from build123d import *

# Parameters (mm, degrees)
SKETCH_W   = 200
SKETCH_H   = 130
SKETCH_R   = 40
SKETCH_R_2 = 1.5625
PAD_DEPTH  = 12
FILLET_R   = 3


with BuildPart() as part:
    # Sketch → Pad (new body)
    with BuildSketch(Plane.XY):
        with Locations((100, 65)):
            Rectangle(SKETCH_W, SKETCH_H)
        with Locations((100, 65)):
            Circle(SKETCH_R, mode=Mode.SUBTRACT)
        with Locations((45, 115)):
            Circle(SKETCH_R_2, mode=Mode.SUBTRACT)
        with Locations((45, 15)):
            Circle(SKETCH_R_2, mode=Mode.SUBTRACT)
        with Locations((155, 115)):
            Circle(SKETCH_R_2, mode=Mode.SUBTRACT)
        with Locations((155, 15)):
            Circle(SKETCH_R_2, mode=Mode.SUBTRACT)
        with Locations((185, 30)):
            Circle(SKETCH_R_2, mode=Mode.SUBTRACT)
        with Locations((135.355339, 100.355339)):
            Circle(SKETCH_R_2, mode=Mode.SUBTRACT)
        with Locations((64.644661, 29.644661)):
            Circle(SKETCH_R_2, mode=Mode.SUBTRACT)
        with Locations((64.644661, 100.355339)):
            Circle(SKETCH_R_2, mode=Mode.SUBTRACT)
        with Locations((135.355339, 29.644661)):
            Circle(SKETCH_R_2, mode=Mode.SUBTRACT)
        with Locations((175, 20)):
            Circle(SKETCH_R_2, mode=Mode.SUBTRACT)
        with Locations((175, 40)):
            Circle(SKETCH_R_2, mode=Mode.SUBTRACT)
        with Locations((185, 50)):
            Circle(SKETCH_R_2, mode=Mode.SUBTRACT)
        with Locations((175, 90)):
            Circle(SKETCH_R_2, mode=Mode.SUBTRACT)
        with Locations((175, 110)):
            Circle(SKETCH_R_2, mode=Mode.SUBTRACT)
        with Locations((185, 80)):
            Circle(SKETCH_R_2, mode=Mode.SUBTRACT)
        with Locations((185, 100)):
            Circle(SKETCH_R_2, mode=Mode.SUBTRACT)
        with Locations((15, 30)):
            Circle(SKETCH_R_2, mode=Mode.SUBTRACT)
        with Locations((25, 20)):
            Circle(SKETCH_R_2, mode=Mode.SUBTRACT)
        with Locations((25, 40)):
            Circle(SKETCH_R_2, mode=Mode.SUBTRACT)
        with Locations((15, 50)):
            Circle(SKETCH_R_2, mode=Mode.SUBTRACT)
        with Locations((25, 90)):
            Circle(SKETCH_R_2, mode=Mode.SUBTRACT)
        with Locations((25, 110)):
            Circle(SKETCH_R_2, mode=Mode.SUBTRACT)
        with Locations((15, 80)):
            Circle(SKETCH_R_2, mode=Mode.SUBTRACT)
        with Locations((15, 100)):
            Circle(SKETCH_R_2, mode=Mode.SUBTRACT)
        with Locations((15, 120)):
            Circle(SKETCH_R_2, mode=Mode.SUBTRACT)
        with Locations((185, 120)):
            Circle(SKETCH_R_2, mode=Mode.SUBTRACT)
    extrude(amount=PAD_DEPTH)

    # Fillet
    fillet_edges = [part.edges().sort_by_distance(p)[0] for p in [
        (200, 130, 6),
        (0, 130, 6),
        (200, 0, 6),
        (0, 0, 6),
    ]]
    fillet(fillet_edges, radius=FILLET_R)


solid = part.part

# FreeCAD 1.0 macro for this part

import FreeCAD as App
import Part
import Sketcher

V = App.Vector


def edges_at(feature, points):
    """Names of the edges that pass closest to the given points."""
    edges = feature.Shape.Edges
    near = lambda p: min(range(len(edges)), key=lambda i: edges[i].distToShape(Part.Vertex(*p))[0])
    return sorted({f"Edge{near(p) + 1}" for p in points})

doc = App.newDocument("Part")
body = doc.addObject("PartDesign::Body", "Body")

# Sketch on XY plane
sketch1 = body.newObject("Sketcher::SketchObject", "Sketch")
sketch1.AttachmentSupport = (doc.getObject("XY_Plane"), [""])
sketch1.MapMode = "FlatFace"
sketch1.addGeometry(Part.LineSegment(V(0, 130, 0), V(0, 0, 0)), False)
sketch1.addGeometry(Part.LineSegment(V(0, 0, 0), V(200, 0, 0)), False)
sketch1.addGeometry(Part.LineSegment(V(200, 0, 0), V(200, 130, 0)), False)
sketch1.addGeometry(Part.LineSegment(V(200, 130, 0), V(0, 130, 0)), False)
sketch1.addGeometry(Part.Circle(V(25, 20, 0), V(0, 0, 1), 1.6), False)
sketch1.addGeometry(Part.Circle(V(45, 15, 0), V(0, 0, 1), 1.6), False)
sketch1.addGeometry(Part.Circle(V(15, 30, 0), V(0, 0, 1), 1.6), False)
sketch1.addGeometry(Part.Circle(V(25, 40, 0), V(0, 0, 1), 1.6), False)
sketch1.addGeometry(Part.Circle(V(64.6, 29.6, 0), V(0, 0, 1), 1.6), False)
sketch1.addGeometry(Part.Circle(V(15, 50, 0), V(0, 0, 1), 1.6), False)
sketch1.addGeometry(Part.Circle(V(135.4, 29.6, 0), V(0, 0, 1), 1.6), False)
sketch1.addGeometry(Part.Circle(V(155, 15, 0), V(0, 0, 1), 1.6), False)
sketch1.addGeometry(Part.Circle(V(175, 20, 0), V(0, 0, 1), 1.6), False)
sketch1.addGeometry(Part.Circle(V(185, 30, 0), V(0, 0, 1), 1.6), False)
sketch1.addGeometry(Part.Circle(V(175, 40, 0), V(0, 0, 1), 1.6), False)
sketch1.addGeometry(Part.Circle(V(100, 65, 0), V(0, 0, 1), 40), False)
sketch1.addGeometry(Part.Circle(V(185, 50, 0), V(0, 0, 1), 1.6), False)
sketch1.addGeometry(Part.Circle(V(15, 80, 0), V(0, 0, 1), 1.6), False)
sketch1.addGeometry(Part.Circle(V(25, 90, 0), V(0, 0, 1), 1.6), False)
sketch1.addGeometry(Part.Circle(V(15, 100, 0), V(0, 0, 1), 1.6), False)
sketch1.addGeometry(Part.Circle(V(25, 110, 0), V(0, 0, 1), 1.6), False)
sketch1.addGeometry(Part.Circle(V(15, 120, 0), V(0, 0, 1), 1.6), False)
sketch1.addGeometry(Part.Circle(V(45, 115, 0), V(0, 0, 1), 1.6), False)
sketch1.addGeometry(Part.Circle(V(64.6, 100.4, 0), V(0, 0, 1), 1.6), False)
sketch1.addGeometry(Part.Circle(V(185, 80, 0), V(0, 0, 1), 1.6), False)
sketch1.addGeometry(Part.Circle(V(175, 90, 0), V(0, 0, 1), 1.6), False)
sketch1.addGeometry(Part.Circle(V(135.4, 100.4, 0), V(0, 0, 1), 1.6), False)
sketch1.addGeometry(Part.Circle(V(185, 100, 0), V(0, 0, 1), 1.6), False)
sketch1.addGeometry(Part.Circle(V(155, 115, 0), V(0, 0, 1), 1.6), False)
sketch1.addGeometry(Part.Circle(V(175, 110, 0), V(0, 0, 1), 1.6), False)
sketch1.addGeometry(Part.Circle(V(185, 120, 0), V(0, 0, 1), 1.6), False)
sketch1.addConstraint(Sketcher.Constraint("Coincident", 0, 2, 1, 1))
sketch1.addConstraint(Sketcher.Constraint("Coincident", 1, 2, 2, 1))
sketch1.addConstraint(Sketcher.Constraint("Coincident", 2, 2, 3, 1))
sketch1.addConstraint(Sketcher.Constraint("Coincident", 3, 2, 0, 1))
sketch1.addConstraint(Sketcher.Constraint("Vertical", 0))
sketch1.addConstraint(Sketcher.Constraint("Horizontal", 1))
sketch1.addConstraint(Sketcher.Constraint("Vertical", 2))
sketch1.addConstraint(Sketcher.Constraint("Horizontal", 3))
sketch1.addConstraint(Sketcher.Constraint("Coincident", 0, 2, -1, 1))
sketch1.addConstraint(Sketcher.Constraint("Equal", 4, 5))
sketch1.addConstraint(Sketcher.Constraint("Equal", 5, 6))
sketch1.addConstraint(Sketcher.Constraint("Equal", 6, 7))
sketch1.addConstraint(Sketcher.Constraint("Equal", 7, 8))
sketch1.addConstraint(Sketcher.Constraint("Equal", 8, 9))
sketch1.addConstraint(Sketcher.Constraint("Equal", 9, 10))
sketch1.addConstraint(Sketcher.Constraint("Equal", 10, 11))
sketch1.addConstraint(Sketcher.Constraint("Equal", 11, 12))
sketch1.addConstraint(Sketcher.Constraint("Equal", 12, 13))
sketch1.addConstraint(Sketcher.Constraint("Equal", 13, 14))
sketch1.addConstraint(Sketcher.Constraint("Equal", 14, 16))
sketch1.addConstraint(Sketcher.Constraint("Equal", 16, 17))
sketch1.addConstraint(Sketcher.Constraint("Equal", 17, 18))
sketch1.addConstraint(Sketcher.Constraint("Equal", 18, 19))
sketch1.addConstraint(Sketcher.Constraint("Equal", 19, 20))
sketch1.addConstraint(Sketcher.Constraint("Equal", 20, 21))
sketch1.addConstraint(Sketcher.Constraint("Equal", 21, 22))
sketch1.addConstraint(Sketcher.Constraint("Equal", 22, 23))
sketch1.addConstraint(Sketcher.Constraint("Equal", 23, 24))
sketch1.addConstraint(Sketcher.Constraint("Equal", 24, 25))
sketch1.addConstraint(Sketcher.Constraint("Equal", 25, 26))
sketch1.addConstraint(Sketcher.Constraint("Equal", 26, 27))
sketch1.addConstraint(Sketcher.Constraint("Equal", 27, 28))
sketch1.addConstraint(Sketcher.Constraint("Equal", 28, 29))
sketch1.addConstraint(Sketcher.Constraint("Equal", 29, 30))
sketch1.addConstraint(Sketcher.Constraint("Horizontal", 8, 3, 10, 3))
sketch1.addConstraint(Sketcher.Constraint("Horizontal", 5, 3, 11, 3))
sketch1.addConstraint(Sketcher.Constraint("Horizontal", 4, 3, 12, 3))
sketch1.addConstraint(Sketcher.Constraint("Horizontal", 6, 3, 13, 3))
sketch1.addConstraint(Sketcher.Constraint("Horizontal", 7, 3, 14, 3))
sketch1.addConstraint(Sketcher.Constraint("Horizontal", 9, 3, 16, 3))
sketch1.addConstraint(Sketcher.Constraint("Horizontal", 17, 3, 24, 3))
sketch1.addConstraint(Sketcher.Constraint("Horizontal", 18, 3, 25, 3))
sketch1.addConstraint(Sketcher.Constraint("Horizontal", 23, 3, 26, 3))
sketch1.addConstraint(Sketcher.Constraint("Horizontal", 19, 3, 27, 3))
sketch1.addConstraint(Sketcher.Constraint("Horizontal", 22, 3, 28, 3))
sketch1.addConstraint(Sketcher.Constraint("Horizontal", 20, 3, 29, 3))
sketch1.addConstraint(Sketcher.Constraint("Horizontal", 21, 3, 30, 3))
sketch1.addConstraint(Sketcher.Constraint("Vertical", 4, 3, 7, 3))
sketch1.addConstraint(Sketcher.Constraint("Vertical", 6, 3, 9, 3))
sketch1.addConstraint(Sketcher.Constraint("Vertical", 12, 3, 14, 3))
sketch1.addConstraint(Sketcher.Constraint("Vertical", 13, 3, 16, 3))
sketch1.addConstraint(Sketcher.Constraint("Vertical", 9, 3, 17, 3))
sketch1.addConstraint(Sketcher.Constraint("Vertical", 7, 3, 18, 3))
sketch1.addConstraint(Sketcher.Constraint("Vertical", 17, 3, 19, 3))
sketch1.addConstraint(Sketcher.Constraint("Vertical", 18, 3, 20, 3))
sketch1.addConstraint(Sketcher.Constraint("Vertical", 19, 3, 21, 3))
sketch1.addConstraint(Sketcher.Constraint("Vertical", 5, 3, 22, 3))
sketch1.addConstraint(Sketcher.Constraint("Vertical", 8, 3, 23, 3))
sketch1.addConstraint(Sketcher.Constraint("Vertical", 16, 3, 24, 3))
sketch1.addConstraint(Sketcher.Constraint("Vertical", 14, 3, 25, 3))
sketch1.addConstraint(Sketcher.Constraint("Vertical", 10, 3, 26, 3))
sketch1.addConstraint(Sketcher.Constraint("Vertical", 24, 3, 27, 3))
sketch1.addConstraint(Sketcher.Constraint("Vertical", 11, 3, 28, 3))
sketch1.addConstraint(Sketcher.Constraint("Vertical", 25, 3, 29, 3))
sketch1.addConstraint(Sketcher.Constraint("Vertical", 27, 3, 30, 3))
sketch1.addConstraint(Sketcher.Constraint("Diameter", 15, 80.0))
sketch1.addConstraint(Sketcher.Constraint("DistanceX", 1, 1, 1, 2, 200.0))
sketch1.addConstraint(Sketcher.Constraint("DistanceY", 0, 2, 0, 1, 130.0))
sketch1.addConstraint(Sketcher.Constraint("Diameter", 4, 3.125))
sketch1.addConstraint(Sketcher.Constraint("DistanceX", -1, 1, 4, 3, 25.0))
sketch1.addConstraint(Sketcher.Constraint("DistanceY", -1, 1, 4, 3, 20.0))
sketch1.addConstraint(Sketcher.Constraint("DistanceX", -1, 1, 5, 3, 45.0))
sketch1.addConstraint(Sketcher.Constraint("DistanceY", -1, 1, 5, 3, 15.0))
sketch1.addConstraint(Sketcher.Constraint("DistanceX", -1, 1, 6, 3, 15.0))
sketch1.addConstraint(Sketcher.Constraint("DistanceY", -1, 1, 6, 3, 30.0))
sketch1.addConstraint(Sketcher.Constraint("DistanceY", -1, 1, 7, 3, 40.0))
sketch1.addConstraint(Sketcher.Constraint("DistanceY", -1, 1, 9, 3, 50.0))
sketch1.addConstraint(Sketcher.Constraint("DistanceX", -1, 1, 11, 3, 155.0))
sketch1.addConstraint(Sketcher.Constraint("DistanceX", -1, 1, 12, 3, 175.0))
sketch1.addConstraint(Sketcher.Constraint("DistanceX", -1, 1, 13, 3, 185.0))
sketch1.addConstraint(Sketcher.Constraint("DistanceX", -1, 1, 15, 3, 100.0))
sketch1.addConstraint(Sketcher.Constraint("DistanceY", -1, 1, 15, 3, 65.0))
sketch1.addConstraint(Sketcher.Constraint("DistanceY", -1, 1, 17, 3, 80.0))
sketch1.addConstraint(Sketcher.Constraint("DistanceY", -1, 1, 18, 3, 90.0))
sketch1.addConstraint(Sketcher.Constraint("DistanceY", -1, 1, 19, 3, 100.0))
sketch1.addConstraint(Sketcher.Constraint("DistanceY", -1, 1, 20, 3, 110.0))
sketch1.addConstraint(Sketcher.Constraint("DistanceY", -1, 1, 21, 3, 120.0))
sketch1.addConstraint(Sketcher.Constraint("DistanceY", -1, 1, 22, 3, 115.0))
sketch1.addConstraint(Sketcher.Constraint("DistanceX", -1, 1, 8, 3, 64.644661))
sketch1.addConstraint(Sketcher.Constraint("DistanceY", -1, 1, 8, 3, 29.644661))
sketch1.addConstraint(Sketcher.Constraint("DistanceX", -1, 1, 10, 3, 135.355339))
sketch1.addConstraint(Sketcher.Constraint("DistanceY", -1, 1, 23, 3, 100.355339))
pad1 = body.newObject("PartDesign::Pad", "Pad")
pad1.Profile = sketch1
pad1.Length = 12
doc.recompute()

fillet = body.newObject("PartDesign::Fillet", "Fillet")
fillet.Base = (pad1, edges_at(pad1, [
    (200, 130, 6),
    (0, 130, 6),
    (200, 0, 6),
    (0, 0, 6),
]))
fillet.Radius = 3

doc.recompute()
